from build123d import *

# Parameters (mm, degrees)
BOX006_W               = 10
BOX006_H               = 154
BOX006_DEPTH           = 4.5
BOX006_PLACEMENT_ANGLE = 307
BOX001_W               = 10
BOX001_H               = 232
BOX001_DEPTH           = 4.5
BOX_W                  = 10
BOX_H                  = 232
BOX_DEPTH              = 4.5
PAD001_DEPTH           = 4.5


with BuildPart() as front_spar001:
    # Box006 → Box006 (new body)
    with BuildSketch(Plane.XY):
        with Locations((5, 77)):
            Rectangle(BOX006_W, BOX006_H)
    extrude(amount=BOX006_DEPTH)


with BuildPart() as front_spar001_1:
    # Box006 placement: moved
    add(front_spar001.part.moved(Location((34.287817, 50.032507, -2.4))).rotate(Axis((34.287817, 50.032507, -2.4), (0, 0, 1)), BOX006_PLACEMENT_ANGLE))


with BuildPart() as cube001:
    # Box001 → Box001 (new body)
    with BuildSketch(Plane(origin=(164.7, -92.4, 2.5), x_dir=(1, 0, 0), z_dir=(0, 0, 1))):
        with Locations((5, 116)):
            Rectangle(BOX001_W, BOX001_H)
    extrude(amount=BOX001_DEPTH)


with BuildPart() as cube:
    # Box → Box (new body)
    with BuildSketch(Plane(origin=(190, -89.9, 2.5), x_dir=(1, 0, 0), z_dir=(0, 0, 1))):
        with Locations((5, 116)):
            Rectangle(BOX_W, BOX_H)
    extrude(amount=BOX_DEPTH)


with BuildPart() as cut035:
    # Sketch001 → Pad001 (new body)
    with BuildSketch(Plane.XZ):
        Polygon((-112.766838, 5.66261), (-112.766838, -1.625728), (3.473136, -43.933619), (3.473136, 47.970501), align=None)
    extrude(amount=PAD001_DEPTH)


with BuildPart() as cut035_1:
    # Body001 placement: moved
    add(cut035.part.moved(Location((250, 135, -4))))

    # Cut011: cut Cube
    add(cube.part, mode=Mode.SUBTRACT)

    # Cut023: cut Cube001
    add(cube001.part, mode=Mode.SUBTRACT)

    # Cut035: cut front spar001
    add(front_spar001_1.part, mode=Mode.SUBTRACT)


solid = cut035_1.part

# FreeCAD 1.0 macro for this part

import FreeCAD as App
import Part
import Sketcher
from FreeCAD import Vector
Q = App.Units.Quantity


def add_polygon(sketch, points):
    """Adds a closed chain of lines whose ends are joined by coincident constraints."""
    first, n = sketch.GeometryCount, len(points)
    for a, b in zip(points, points[1:] + points[:1]):
        sketch.addGeometry(Part.LineSegment(App.Vector(*a, 0), App.Vector(*b, 0)), False)
    for i in range(n):
        sketch.addConstraint(Sketcher.Constraint("Coincident", first + i, 2, first + (i + 1) % n, 1))

doc = App.newDocument("Part")
body = doc.addObject("PartDesign::Body", "Body")

sketch1 = body.newObject("Sketcher::SketchObject", "Sketch")
sketch1.AttachmentSupport = (doc.getObject("XY_Plane"), [""])
sketch1.MapMode = "FlatFace"
add_polygon(sketch1, [(0, 154), (0, 0), (10, 0), (10, 154)])
sketch1.addConstraint([
    Sketcher.Constraint("Vertical", 0),
    Sketcher.Constraint("Horizontal", 1),
    Sketcher.Constraint("Vertical", 2),
    Sketcher.Constraint("Horizontal", 3),
    Sketcher.Constraint("Coincident", 0, 2, -1, 1),
    Sketcher.Constraint("DistanceX", 1, 1, 1, 2, 10.0),
    Sketcher.Constraint("DistanceY", 0, 2, 0, 1, 154.0),
])
pad1 = body.newObject("PartDesign::Pad", "Pad")
pad1.Profile = sketch1
pad1.Length = 4.5
body2 = doc.addObject("PartDesign::Body", "Body001")
doc.recompute()

body.Placement = App.Placement(Vector(34.287817, 50.032507, -2.4), App.Rotation(Vector(0, 0, 1), 307))
boolean = body2.newObject("PartDesign::Boolean", "Boolean")
boolean.Type = "Fuse"
boolean.addObjects([body])
body3 = doc.addObject("PartDesign::Body", "Body002")

sketch2 = body3.newObject("Sketcher::SketchObject", "Sketch001")
sketch2.AttachmentSupport = (doc.getObject("XY_Plane002"), [""])
sketch2.MapMode = "FlatFace"
sketch2.AttachmentOffset = App.Placement(Vector(0, 0, 2.5), App.Rotation())
add_polygon(sketch2, [(165, 140), (165, -92), (175, -92), (175, 140)])
sketch2.addConstraint([
    Sketcher.Constraint("Vertical", 0),
    Sketcher.Constraint("Horizontal", 1),
    Sketcher.Constraint("Vertical", 2),
    Sketcher.Constraint("Horizontal", 3),
    Sketcher.Constraint("DistanceX", 1, 1, 1, 2, 10.0),
    Sketcher.Constraint("DistanceY", 0, 2, 0, 1, 232.0),
    Sketcher.Constraint("DistanceX", -1, 1, 0, 2, 164.7),
    Sketcher.Constraint("DistanceY", 0, 2, -1, 1, 92.4),
])
pad2 = body3.newObject("PartDesign::Pad", "Pad001")
pad2.Profile = sketch2
pad2.Length = 4.5
body4 = doc.addObject("PartDesign::Body", "Body003")

sketch3 = body4.newObject("Sketcher::SketchObject", "Sketch002")
sketch3.AttachmentSupport = (doc.getObject("XY_Plane003"), [""])
sketch3.MapMode = "FlatFace"
sketch3.AttachmentOffset = App.Placement(Vector(0, 0, 2.5), App.Rotation())
add_polygon(sketch3, [(190, 142), (190, -90), (200, -90), (200, 142)])
sketch3.addConstraint([
    Sketcher.Constraint("Vertical", 0),
    Sketcher.Constraint("Horizontal", 1),
    Sketcher.Constraint("Vertical", 2),
    Sketcher.Constraint("Horizontal", 3),
    Sketcher.Constraint("DistanceX", 1, 1, 1, 2, 10.0),
    Sketcher.Constraint("DistanceY", 0, 2, 0, 1, 232.0),
    Sketcher.Constraint("DistanceX", -1, 1, 0, 2, 190.0),
    Sketcher.Constraint("DistanceY", 0, 2, -1, 1, 89.9),
])
pad3 = body4.newObject("PartDesign::Pad", "Pad002")
pad3.Profile = sketch3
pad3.Length = 4.5
body5 = doc.addObject("PartDesign::Body", "Body004")

sketch4 = body5.newObject("Sketcher::SketchObject", "Sketch003")
sketch4.AttachmentSupport = (doc.getObject("XZ_Plane004"), [""])
sketch4.MapMode = "FlatFace"
add_polygon(sketch4, [(-113, 6), (-113, -2), (3, -44), (3, 48)])
sketch4.addConstraint([
    Sketcher.Constraint("Vertical", 0),
    Sketcher.Constraint("Vertical", 2),
    Sketcher.Constraint("Equal", 1, 3),
    Sketcher.Constraint("Angle", 1, Q("-20 deg")),
    Sketcher.Constraint("DistanceY", 2, 1, 2, 2, 91.90412),
    Sketcher.Constraint("DistanceY", -1, 1, 2, 2, 47.970501),
    Sketcher.Constraint("DistanceY", 0, 2, 0, 1, 7.288338),
    Sketcher.Constraint("DistanceX", 0, 2, -1, 1, 112.766838),
])
pad4 = body5.newObject("PartDesign::Pad", "Pad003")
pad4.Profile = sketch4
pad4.Length = 4.5
body6 = doc.addObject("PartDesign::Body", "Body005")
doc.recompute()

body5.Placement = App.Placement(Vector(250, 135, -4), App.Rotation(Vector(0, 0, 1), 0))
boolean2 = body6.newObject("PartDesign::Boolean", "Boolean001")
boolean2.Type = "Fuse"
boolean2.addObjects([body5])
doc.recompute()

boolean3 = body6.newObject("PartDesign::Boolean", "Boolean002")
boolean3.Type = "Cut"
boolean3.addObjects([body4])
doc.recompute()

boolean4 = body6.newObject("PartDesign::Boolean", "Boolean003")
boolean4.Type = "Cut"
boolean4.addObjects([body3])
doc.recompute()

boolean5 = body6.newObject("PartDesign::Boolean", "Boolean004")
boolean5.Type = "Cut"
boolean5.addObjects([body2])

doc.recompute()
